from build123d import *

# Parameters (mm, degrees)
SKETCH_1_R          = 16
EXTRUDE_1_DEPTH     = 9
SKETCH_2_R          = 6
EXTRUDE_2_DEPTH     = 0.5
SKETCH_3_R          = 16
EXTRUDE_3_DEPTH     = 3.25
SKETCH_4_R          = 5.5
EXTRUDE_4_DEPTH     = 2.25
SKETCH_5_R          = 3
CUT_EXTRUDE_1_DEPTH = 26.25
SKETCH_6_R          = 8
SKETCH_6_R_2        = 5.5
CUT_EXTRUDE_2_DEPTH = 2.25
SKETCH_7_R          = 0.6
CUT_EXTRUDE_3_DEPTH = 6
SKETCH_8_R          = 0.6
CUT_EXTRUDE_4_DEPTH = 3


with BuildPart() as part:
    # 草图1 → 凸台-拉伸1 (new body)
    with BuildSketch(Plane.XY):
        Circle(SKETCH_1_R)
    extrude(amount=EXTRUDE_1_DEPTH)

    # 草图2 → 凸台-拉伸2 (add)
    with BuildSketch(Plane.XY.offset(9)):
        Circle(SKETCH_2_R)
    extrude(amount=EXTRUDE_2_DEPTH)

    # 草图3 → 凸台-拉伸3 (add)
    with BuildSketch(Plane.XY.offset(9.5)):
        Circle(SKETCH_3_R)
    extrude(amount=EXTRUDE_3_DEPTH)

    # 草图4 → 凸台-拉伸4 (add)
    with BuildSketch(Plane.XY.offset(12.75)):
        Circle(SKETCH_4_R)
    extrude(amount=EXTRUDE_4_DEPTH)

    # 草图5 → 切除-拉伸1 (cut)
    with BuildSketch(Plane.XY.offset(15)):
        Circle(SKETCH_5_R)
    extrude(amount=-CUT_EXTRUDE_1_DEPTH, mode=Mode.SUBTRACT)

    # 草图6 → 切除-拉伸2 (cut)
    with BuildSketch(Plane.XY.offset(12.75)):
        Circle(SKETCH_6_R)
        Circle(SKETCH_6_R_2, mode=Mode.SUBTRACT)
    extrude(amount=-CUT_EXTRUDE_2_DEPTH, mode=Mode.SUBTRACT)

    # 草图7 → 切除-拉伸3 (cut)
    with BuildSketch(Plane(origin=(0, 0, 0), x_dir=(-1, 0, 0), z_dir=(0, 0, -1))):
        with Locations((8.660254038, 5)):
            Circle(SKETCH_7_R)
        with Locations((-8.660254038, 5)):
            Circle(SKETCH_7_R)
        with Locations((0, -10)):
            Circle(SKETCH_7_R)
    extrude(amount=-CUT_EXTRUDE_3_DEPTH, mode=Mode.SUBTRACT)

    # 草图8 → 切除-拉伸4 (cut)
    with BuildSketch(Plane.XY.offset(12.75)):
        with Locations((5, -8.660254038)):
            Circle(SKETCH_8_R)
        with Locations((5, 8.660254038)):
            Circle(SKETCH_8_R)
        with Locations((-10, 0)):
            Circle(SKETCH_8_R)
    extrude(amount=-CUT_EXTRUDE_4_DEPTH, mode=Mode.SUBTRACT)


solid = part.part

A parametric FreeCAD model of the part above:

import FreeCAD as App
import Part
import Sketcher
from FreeCAD import Vector
Q = App.Units.Quantity

doc = App.newDocument("Part")
params = doc.addObject("Spreadsheet::Sheet", "Params")
for row, (alias, value) in enumerate([
    ("sketch1_diameter", "32 mm"),
    ("pad1_length", "9 mm"),
    ("sketch2_diameter", "12 mm"),
    ("pad2_length", "0.5 mm"),
    ("sketch3_diameter", "32 mm"),
    ("pad3_length", "3.25 mm"),
    ("sketch4_diameter", "11 mm"),
    ("pad4_length", "2.25 mm"),
    ("sketch5_diameter", "6 mm"),
    ("pocket1_length", "26.25 mm"),
    ("sketch6_diameter", "16 mm"),
    ("sketch6_diameter2", "11 mm"),
    ("pocket2_length", "2.25 mm"),
    ("sketch7_diameter", "1.2 mm"),
    ("pocket3_length", "6 mm"),
    ("sketch8_diameter", "1.2 mm"),
    ("pocket4_length", "3 mm"),
], start=1):
    params.set(f"A{row}", alias)
    params.set(f"B{row}", "=" + value)
    params.setAlias(f"B{row}", alias)

body = doc.addObject("PartDesign::Body", "Body")

sketch1 = body.newObject("Sketcher::SketchObject", "Sketch")
sketch1.AttachmentSupport = (doc.getObject("XY_Plane"), [""])
sketch1.MapMode = "FlatFace"
sketch1.addGeometry(Part.Circle(Vector(0, 0, 0), Vector(0, 0, 1), 16), False)
sketch1.addConstraint(Sketcher.Constraint("Coincident", 0, 3, -1, 1))
sketch1.addConstraint(Sketcher.Constraint("Diameter", 0, Q("32 mm")))
sketch1.setExpression("Constraints[1]", "Params.sketch1_diameter")
pad1 = body.newObject("PartDesign::Pad", "Pad")
pad1.Profile = sketch1
pad1.setExpression("Length", "Params.pad1_length")

sketch2 = body.newObject("Sketcher::SketchObject", "Sketch001")
sketch2.AttachmentSupport = (doc.getObject("XY_Plane"), [""])
sketch2.MapMode = "FlatFace"
sketch2.AttachmentOffset = App.Placement(Vector(0, 0, 9), App.Rotation())
sketch2.addGeometry(Part.Circle(Vector(0, 0, 0), Vector(0, 0, 1), 6), False)
sketch2.addConstraint(Sketcher.Constraint("Coincident", 0, 3, -1, 1))
sketch2.addConstraint(Sketcher.Constraint("Diameter", 0, Q("12 mm")))
sketch2.setExpression("Constraints[1]", "Params.sketch2_diameter")
pad2 = body.newObject("PartDesign::Pad", "Pad001")
pad2.Profile = sketch2
pad2.setExpression("Length", "Params.pad2_length")

sketch3 = body.newObject("Sketcher::SketchObject", "Sketch002")
sketch3.AttachmentSupport = (doc.getObject("XY_Plane"), [""])
sketch3.MapMode = "FlatFace"
sketch3.AttachmentOffset = App.Placement(Vector(0, 0, 9.5), App.Rotation())
sketch3.addGeometry(Part.Circle(Vector(0, 0, 0), Vector(0, 0, 1), 16), False)
sketch3.addConstraint(Sketcher.Constraint("Coincident", 0, 3, -1, 1))
sketch3.addConstraint(Sketcher.Constraint("Diameter", 0, Q("32 mm")))
sketch3.setExpression("Constraints[1]", "Params.sketch3_diameter")
pad3 = body.newObject("PartDesign::Pad", "Pad002")
pad3.Profile = sketch3
pad3.setExpression("Length", "Params.pad3_length")

sketch4 = body.newObject("Sketcher::SketchObject", "Sketch003")
sketch4.AttachmentSupport = (doc.getObject("XY_Plane"), [""])
sketch4.MapMode = "FlatFace"
sketch4.AttachmentOffset = App.Placement(Vector(0, 0, 12.75), App.Rotation())
sketch4.addGeometry(Part.Circle(Vector(0, 0, 0), Vector(0, 0, 1), 6), False)
sketch4.addConstraint(Sketcher.Constraint("Coincident", 0, 3, -1, 1))
sketch4.addConstraint(Sketcher.Constraint("Diameter", 0, Q("11 mm")))
sketch4.setExpression("Constraints[1]", "Params.sketch4_diameter")
pad4 = body.newObject("PartDesign::Pad", "Pad003")
pad4.Profile = sketch4
pad4.setExpression("Length", "Params.pad4_length")

sketch5 = body.newObject("Sketcher::SketchObject", "Sketch004")
sketch5.AttachmentSupport = (doc.getObject("XY_Plane"), [""])
sketch5.MapMode = "FlatFace"
sketch5.AttachmentOffset = App.Placement(Vector(0, 0, 15), App.Rotation())
sketch5.addGeometry(Part.Circle(Vector(0, 0, 0), Vector(0, 0, 1), 3), False)
sketch5.addConstraint(Sketcher.Constraint("Coincident", 0, 3, -1, 1))
sketch5.addConstraint(Sketcher.Constraint("Diameter", 0, Q("6 mm")))
sketch5.setExpression("Constraints[1]", "Params.sketch5_diameter")
pocket1 = body.newObject("PartDesign::Pocket", "Pocket")
pocket1.Profile = sketch5
pocket1.setExpression("Length", "Params.pocket1_length")

sketch6 = body.newObject("Sketcher::SketchObject", "Sketch005")
sketch6.AttachmentSupport = (doc.getObject("XY_Plane"), [""])
sketch6.MapMode = "FlatFace"
sketch6.AttachmentOffset = App.Placement(Vector(0, 0, 12.75), App.Rotation())
sketch6.addGeometry(Part.Circle(Vector(0, 0, 0), Vector(0, 0, 1), 8), False)
sketch6.addGeometry(Part.Circle(Vector(0, 0, 0), Vector(0, 0, 1), 6), False)
sketch6.addConstraint(Sketcher.Constraint("Coincident", 0, 3, -1, 1))
sketch6.addConstraint(Sketcher.Constraint("Coincident", 1, 3, -1, 1))
sketch6.addConstraint(Sketcher.Constraint("Diameter", 0, Q("16 mm")))
sketch6.addConstraint(Sketcher.Constraint("Diameter", 1, Q("11 mm")))
sketch6.setExpression("Constraints[2]", "Params.sketch6_diameter")
sketch6.setExpression("Constraints[3]", "Params.sketch6_diameter2")
pocket2 = body.newObject("PartDesign::Pocket", "Pocket001")
pocket2.Profile = sketch6
pocket2.setExpression("Length", "Params.pocket2_length")

sketch7 = body.newObject("Sketcher::SketchObject", "Sketch006")
sketch7.AttachmentSupport = (doc.getObject("XY_Plane"), [""])
sketch7.MapMode = "FlatFace"
sketch7.addGeometry(Part.Circle(Vector(-8.7, 5, 0), Vector(0, 0, 1), 0.6), False)
sketch7.addGeometry(Part.Circle(Vector(8.7, 5, 0), Vector(0, 0, 1), 0.6), False)
sketch7.addGeometry(Part.Circle(Vector(0, -10, 0), Vector(0, 0, 1), 0.6), False)
sketch7.addConstraint(Sketcher.Constraint("Equal", 0, 1))
sketch7.addConstraint(Sketcher.Constraint("Equal", 1, 2))
sketch7.addConstraint(Sketcher.Constraint("Symmetric", 0, 3, 1, 3, -2))
sketch7.addConstraint(Sketcher.Constraint("PointOnObject", 2, 3, -2))
sketch7.addConstraint(Sketcher.Constraint("Diameter", 0, Q("1.2 mm")))
sketch7.addConstraint(Sketcher.Constraint("DistanceY", -1, 1, 0, 3, Q("5 mm")))
sketch7.addConstraint(Sketcher.Constraint("DistanceY", 2, 3, -1, 1, Q("10 mm")))
sketch7.addConstraint(Sketcher.Constraint("DistanceX", 0, 3, 1, 3, Q("17.320508 mm")))
sketch7.setExpression("Constraints[4]", "Params.sketch7_diameter")
pocket3 = body.newObject("PartDesign::Pocket", "Pocket002")
pocket3.Profile = sketch7
pocket3.setExpression("Length", "Params.pocket3_length")
pocket3.Reversed = True

sketch8 = body.newObject("Sketcher::SketchObject", "Sketch007")
sketch8.AttachmentSupport = (doc.getObject("XY_Plane"), [""])
sketch8.MapMode = "FlatFace"
sketch8.AttachmentOffset = App.Placement(Vector(0, 0, 12.75), App.Rotation())
sketch8.addGeometry(Part.Circle(Vector(5, -8.7, 0), Vector(0, 0, 1), 0.6), False)
sketch8.addGeometry(Part.Circle(Vector(5, 8.7, 0), Vector(0, 0, 1), 0.6), False)
sketch8.addGeometry(Part.Circle(Vector(-10, 0, 0), Vector(0, 0, 1), 0.6), False)
sketch8.addConstraint(Sketcher.Constraint("Equal", 0, 1))
sketch8.addConstraint(Sketcher.Constraint("Equal", 1, 2))
sketch8.addConstraint(Sketcher.Constraint("Symmetric", 0, 3, 1, 3, -1))
sketch8.addConstraint(Sketcher.Constraint("PointOnObject", 2, 3, -1))
sketch8.addConstraint(Sketcher.Constraint("Diameter", 0, Q("1.2 mm")))
sketch8.addConstraint(Sketcher.Constraint("DistanceX", -1, 1, 0, 3, Q("5 mm")))
sketch8.addConstraint(Sketcher.Constraint("DistanceX", 2, 3, -1, 1, Q("10 mm")))
sketch8.addConstraint(Sketcher.Constraint("DistanceY", 0, 3, 1, 3, Q("17.320508 mm")))
sketch8.setExpression("Constraints[4]", "Params.sketch8_diameter")
pocket4 = body.newObject("PartDesign::Pocket", "Pocket003")
pocket4.Profile = sketch8
pocket4.setExpression("Length", "Params.pocket4_length")

doc.recompute()
